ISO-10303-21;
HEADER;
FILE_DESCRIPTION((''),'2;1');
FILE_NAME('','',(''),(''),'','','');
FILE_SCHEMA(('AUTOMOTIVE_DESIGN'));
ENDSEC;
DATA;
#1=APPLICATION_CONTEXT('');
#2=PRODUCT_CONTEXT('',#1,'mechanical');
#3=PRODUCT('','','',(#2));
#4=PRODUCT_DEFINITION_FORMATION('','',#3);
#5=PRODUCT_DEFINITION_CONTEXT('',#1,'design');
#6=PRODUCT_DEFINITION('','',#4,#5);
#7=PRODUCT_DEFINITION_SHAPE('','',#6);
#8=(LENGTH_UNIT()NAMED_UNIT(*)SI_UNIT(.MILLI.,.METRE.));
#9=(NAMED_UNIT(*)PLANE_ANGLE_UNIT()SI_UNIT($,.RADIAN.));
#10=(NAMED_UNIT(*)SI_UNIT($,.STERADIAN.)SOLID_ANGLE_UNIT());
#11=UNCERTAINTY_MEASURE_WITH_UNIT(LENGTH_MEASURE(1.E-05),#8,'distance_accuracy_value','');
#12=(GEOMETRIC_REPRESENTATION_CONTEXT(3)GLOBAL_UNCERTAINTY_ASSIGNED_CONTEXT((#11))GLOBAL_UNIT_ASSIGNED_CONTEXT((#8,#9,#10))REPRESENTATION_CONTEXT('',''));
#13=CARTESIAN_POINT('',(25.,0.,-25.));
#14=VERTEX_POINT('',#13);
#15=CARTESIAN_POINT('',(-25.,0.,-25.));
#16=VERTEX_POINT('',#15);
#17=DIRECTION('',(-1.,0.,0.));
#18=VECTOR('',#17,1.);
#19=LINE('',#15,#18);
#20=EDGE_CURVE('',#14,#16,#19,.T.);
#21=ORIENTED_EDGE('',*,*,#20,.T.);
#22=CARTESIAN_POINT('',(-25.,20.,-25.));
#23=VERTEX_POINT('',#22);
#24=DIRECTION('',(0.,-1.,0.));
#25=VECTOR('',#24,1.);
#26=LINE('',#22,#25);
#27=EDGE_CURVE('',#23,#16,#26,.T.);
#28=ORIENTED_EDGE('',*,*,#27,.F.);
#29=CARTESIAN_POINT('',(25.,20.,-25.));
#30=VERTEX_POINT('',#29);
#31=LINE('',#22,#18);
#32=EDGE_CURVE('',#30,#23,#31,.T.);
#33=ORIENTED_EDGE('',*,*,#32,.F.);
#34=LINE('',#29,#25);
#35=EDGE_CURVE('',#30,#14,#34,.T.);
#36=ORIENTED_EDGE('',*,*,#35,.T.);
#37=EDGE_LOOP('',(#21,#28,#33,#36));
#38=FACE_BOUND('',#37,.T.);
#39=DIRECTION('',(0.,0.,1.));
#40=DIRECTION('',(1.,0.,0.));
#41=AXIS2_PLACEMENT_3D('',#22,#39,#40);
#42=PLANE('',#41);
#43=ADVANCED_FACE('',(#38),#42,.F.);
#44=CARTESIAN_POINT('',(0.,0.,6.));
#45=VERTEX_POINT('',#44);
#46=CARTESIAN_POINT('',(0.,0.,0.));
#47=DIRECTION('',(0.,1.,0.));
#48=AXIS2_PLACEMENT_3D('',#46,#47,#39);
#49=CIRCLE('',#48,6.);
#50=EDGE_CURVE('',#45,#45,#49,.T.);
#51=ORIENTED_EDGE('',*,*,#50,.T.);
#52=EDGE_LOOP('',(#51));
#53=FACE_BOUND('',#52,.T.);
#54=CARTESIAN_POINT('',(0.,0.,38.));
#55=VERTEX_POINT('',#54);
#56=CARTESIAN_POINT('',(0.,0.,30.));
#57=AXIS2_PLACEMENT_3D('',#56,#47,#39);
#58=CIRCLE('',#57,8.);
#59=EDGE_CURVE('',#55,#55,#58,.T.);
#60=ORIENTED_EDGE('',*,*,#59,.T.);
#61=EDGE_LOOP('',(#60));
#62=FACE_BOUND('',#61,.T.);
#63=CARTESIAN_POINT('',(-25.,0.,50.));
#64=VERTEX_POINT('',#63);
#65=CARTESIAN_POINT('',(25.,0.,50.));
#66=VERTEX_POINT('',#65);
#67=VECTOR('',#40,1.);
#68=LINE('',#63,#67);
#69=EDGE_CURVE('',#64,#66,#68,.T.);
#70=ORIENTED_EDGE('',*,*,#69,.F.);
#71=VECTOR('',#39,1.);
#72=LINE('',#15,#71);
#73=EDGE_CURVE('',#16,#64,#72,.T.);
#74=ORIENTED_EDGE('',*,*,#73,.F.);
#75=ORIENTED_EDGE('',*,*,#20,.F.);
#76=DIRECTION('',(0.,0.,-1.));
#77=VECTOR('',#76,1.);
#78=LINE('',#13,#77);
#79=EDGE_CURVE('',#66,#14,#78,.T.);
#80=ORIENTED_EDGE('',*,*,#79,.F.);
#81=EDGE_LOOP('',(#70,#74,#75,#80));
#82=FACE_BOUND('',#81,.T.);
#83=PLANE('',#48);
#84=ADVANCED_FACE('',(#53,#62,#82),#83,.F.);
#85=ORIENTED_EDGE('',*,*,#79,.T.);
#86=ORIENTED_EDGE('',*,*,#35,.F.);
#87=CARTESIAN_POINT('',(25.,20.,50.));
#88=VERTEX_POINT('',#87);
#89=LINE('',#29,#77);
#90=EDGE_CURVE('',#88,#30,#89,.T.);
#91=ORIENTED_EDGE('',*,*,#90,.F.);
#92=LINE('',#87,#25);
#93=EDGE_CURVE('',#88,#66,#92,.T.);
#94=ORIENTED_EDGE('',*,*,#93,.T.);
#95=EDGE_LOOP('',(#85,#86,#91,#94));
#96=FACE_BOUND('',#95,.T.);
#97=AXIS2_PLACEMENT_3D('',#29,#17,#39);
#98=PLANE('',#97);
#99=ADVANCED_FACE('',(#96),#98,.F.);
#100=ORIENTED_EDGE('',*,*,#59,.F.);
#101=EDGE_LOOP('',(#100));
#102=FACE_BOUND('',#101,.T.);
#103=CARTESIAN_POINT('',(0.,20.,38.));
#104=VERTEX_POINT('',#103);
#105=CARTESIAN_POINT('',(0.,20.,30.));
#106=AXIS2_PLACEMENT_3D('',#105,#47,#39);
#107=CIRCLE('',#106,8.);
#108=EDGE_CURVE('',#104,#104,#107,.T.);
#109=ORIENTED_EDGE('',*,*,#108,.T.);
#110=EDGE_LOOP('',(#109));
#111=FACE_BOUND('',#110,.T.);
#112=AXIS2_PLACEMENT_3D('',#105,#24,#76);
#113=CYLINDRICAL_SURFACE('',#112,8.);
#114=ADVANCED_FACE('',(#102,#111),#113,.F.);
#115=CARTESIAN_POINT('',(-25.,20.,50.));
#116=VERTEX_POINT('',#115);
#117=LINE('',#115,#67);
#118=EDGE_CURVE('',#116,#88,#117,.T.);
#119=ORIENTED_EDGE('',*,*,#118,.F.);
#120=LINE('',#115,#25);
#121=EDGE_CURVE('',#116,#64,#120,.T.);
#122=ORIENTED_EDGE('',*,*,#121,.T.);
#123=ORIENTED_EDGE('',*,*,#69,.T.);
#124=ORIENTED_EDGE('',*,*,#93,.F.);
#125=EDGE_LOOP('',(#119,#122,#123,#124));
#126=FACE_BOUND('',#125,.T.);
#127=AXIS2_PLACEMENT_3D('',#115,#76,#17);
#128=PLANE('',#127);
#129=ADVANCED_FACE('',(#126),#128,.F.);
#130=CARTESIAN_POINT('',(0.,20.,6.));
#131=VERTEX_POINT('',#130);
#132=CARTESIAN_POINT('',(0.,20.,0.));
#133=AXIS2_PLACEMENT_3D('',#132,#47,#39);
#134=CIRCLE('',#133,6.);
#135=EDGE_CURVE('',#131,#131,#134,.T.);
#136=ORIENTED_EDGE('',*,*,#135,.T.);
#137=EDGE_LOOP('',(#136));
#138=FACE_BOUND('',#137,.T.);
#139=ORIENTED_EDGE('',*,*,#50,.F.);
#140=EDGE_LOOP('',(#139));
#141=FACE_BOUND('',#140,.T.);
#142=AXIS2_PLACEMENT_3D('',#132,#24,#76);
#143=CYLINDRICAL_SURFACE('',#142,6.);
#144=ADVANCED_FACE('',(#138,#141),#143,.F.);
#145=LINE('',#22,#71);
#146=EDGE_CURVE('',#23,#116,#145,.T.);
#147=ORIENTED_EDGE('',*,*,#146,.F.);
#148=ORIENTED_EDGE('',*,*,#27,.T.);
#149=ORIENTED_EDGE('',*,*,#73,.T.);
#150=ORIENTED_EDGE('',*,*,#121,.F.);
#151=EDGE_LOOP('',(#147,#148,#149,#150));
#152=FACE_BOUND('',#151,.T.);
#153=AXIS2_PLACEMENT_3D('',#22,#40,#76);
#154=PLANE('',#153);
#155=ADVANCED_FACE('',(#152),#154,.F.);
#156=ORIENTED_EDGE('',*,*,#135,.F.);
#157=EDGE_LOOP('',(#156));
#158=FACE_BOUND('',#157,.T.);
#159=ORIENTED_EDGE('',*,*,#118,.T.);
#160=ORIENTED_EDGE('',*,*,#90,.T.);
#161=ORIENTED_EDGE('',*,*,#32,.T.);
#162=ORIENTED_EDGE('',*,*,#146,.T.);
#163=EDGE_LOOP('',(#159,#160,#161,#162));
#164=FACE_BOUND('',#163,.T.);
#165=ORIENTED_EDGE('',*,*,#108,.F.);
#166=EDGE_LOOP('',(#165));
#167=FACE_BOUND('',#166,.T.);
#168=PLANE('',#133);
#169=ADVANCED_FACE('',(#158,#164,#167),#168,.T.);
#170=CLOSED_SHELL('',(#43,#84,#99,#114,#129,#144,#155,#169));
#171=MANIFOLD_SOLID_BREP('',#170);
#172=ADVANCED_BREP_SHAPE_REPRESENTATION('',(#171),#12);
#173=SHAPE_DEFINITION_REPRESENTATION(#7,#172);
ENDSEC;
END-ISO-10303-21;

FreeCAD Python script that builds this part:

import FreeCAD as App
import Part
import Sketcher
Q = App.Units.Quantity


def add_polygon(sketch, points):
    """Adds a closed chain of lines whose ends are joined by coincident constraints."""
    first, n = sketch.GeometryCount, len(points)
    for a, b in zip(points, points[1:] + points[:1]):
        sketch.addGeometry(Part.LineSegment(App.Vector(*a, 0), App.Vector(*b, 0)), False)
    for i in range(n):
        sketch.addConstraint(Sketcher.Constraint("Coincident", first + i, 2, first + (i + 1) % n, 1))

doc = App.newDocument("Part")
body = doc.addObject("PartDesign::Body", "Body")

sketch1 = body.newObject("Sketcher::SketchObject", "Sketch")
sketch1.AttachmentSupport = (doc.getObject("XZ_Plane"), [""])
sketch1.MapMode = "FlatFace"
add_polygon(sketch1, [(-25, -25), (-25, 50), (25, 50), (25, -25)])
sketch1.addGeometry(Part.Circle(App.Vector(0, 30, 0), App.Vector(0, 0, 1), 8), False)
sketch1.addGeometry(Part.Circle(App.Vector(0, 0, 0), App.Vector(0, 0, 1), 6), False)
sketch1.addConstraint(Sketcher.Constraint("Vertical", 0))
sketch1.addConstraint(Sketcher.Constraint("Horizontal", 1))
sketch1.addConstraint(Sketcher.Constraint("Vertical", 2))
sketch1.addConstraint(Sketcher.Constraint("Horizontal", 3))
sketch1.addConstraint(Sketcher.Constraint("Coincident", 5, 3, -1, 1))
sketch1.addConstraint(Sketcher.Constraint("PointOnObject", 4, 3, -2))
sketch1.addConstraint(Sketcher.Constraint("Diameter", 4, Q("16 mm")))
sketch1.addConstraint(Sketcher.Constraint("Diameter", 5, Q("12 mm")))
sketch1.addConstraint(Sketcher.Constraint("DistanceX", 1, 1, 1, 2, Q("50 mm")))
sketch1.addConstraint(Sketcher.Constraint("DistanceY", 0, 1, 0, 2, Q("75 mm")))
sketch1.addConstraint(Sketcher.Constraint("DistanceY", -1, 1, 4, 3, Q("30 mm")))
sketch1.addConstraint(Sketcher.Constraint("DistanceX", 0, 2, -1, 1, Q("25 mm")))
sketch1.addConstraint(Sketcher.Constraint("DistanceY", -1, 1, 0, 2, Q("50 mm")))
pad1 = body.newObject("PartDesign::Pad", "Pad")
pad1.Profile = sketch1
pad1.Length = 20
pad1.Reversed = True

doc.recompute()
